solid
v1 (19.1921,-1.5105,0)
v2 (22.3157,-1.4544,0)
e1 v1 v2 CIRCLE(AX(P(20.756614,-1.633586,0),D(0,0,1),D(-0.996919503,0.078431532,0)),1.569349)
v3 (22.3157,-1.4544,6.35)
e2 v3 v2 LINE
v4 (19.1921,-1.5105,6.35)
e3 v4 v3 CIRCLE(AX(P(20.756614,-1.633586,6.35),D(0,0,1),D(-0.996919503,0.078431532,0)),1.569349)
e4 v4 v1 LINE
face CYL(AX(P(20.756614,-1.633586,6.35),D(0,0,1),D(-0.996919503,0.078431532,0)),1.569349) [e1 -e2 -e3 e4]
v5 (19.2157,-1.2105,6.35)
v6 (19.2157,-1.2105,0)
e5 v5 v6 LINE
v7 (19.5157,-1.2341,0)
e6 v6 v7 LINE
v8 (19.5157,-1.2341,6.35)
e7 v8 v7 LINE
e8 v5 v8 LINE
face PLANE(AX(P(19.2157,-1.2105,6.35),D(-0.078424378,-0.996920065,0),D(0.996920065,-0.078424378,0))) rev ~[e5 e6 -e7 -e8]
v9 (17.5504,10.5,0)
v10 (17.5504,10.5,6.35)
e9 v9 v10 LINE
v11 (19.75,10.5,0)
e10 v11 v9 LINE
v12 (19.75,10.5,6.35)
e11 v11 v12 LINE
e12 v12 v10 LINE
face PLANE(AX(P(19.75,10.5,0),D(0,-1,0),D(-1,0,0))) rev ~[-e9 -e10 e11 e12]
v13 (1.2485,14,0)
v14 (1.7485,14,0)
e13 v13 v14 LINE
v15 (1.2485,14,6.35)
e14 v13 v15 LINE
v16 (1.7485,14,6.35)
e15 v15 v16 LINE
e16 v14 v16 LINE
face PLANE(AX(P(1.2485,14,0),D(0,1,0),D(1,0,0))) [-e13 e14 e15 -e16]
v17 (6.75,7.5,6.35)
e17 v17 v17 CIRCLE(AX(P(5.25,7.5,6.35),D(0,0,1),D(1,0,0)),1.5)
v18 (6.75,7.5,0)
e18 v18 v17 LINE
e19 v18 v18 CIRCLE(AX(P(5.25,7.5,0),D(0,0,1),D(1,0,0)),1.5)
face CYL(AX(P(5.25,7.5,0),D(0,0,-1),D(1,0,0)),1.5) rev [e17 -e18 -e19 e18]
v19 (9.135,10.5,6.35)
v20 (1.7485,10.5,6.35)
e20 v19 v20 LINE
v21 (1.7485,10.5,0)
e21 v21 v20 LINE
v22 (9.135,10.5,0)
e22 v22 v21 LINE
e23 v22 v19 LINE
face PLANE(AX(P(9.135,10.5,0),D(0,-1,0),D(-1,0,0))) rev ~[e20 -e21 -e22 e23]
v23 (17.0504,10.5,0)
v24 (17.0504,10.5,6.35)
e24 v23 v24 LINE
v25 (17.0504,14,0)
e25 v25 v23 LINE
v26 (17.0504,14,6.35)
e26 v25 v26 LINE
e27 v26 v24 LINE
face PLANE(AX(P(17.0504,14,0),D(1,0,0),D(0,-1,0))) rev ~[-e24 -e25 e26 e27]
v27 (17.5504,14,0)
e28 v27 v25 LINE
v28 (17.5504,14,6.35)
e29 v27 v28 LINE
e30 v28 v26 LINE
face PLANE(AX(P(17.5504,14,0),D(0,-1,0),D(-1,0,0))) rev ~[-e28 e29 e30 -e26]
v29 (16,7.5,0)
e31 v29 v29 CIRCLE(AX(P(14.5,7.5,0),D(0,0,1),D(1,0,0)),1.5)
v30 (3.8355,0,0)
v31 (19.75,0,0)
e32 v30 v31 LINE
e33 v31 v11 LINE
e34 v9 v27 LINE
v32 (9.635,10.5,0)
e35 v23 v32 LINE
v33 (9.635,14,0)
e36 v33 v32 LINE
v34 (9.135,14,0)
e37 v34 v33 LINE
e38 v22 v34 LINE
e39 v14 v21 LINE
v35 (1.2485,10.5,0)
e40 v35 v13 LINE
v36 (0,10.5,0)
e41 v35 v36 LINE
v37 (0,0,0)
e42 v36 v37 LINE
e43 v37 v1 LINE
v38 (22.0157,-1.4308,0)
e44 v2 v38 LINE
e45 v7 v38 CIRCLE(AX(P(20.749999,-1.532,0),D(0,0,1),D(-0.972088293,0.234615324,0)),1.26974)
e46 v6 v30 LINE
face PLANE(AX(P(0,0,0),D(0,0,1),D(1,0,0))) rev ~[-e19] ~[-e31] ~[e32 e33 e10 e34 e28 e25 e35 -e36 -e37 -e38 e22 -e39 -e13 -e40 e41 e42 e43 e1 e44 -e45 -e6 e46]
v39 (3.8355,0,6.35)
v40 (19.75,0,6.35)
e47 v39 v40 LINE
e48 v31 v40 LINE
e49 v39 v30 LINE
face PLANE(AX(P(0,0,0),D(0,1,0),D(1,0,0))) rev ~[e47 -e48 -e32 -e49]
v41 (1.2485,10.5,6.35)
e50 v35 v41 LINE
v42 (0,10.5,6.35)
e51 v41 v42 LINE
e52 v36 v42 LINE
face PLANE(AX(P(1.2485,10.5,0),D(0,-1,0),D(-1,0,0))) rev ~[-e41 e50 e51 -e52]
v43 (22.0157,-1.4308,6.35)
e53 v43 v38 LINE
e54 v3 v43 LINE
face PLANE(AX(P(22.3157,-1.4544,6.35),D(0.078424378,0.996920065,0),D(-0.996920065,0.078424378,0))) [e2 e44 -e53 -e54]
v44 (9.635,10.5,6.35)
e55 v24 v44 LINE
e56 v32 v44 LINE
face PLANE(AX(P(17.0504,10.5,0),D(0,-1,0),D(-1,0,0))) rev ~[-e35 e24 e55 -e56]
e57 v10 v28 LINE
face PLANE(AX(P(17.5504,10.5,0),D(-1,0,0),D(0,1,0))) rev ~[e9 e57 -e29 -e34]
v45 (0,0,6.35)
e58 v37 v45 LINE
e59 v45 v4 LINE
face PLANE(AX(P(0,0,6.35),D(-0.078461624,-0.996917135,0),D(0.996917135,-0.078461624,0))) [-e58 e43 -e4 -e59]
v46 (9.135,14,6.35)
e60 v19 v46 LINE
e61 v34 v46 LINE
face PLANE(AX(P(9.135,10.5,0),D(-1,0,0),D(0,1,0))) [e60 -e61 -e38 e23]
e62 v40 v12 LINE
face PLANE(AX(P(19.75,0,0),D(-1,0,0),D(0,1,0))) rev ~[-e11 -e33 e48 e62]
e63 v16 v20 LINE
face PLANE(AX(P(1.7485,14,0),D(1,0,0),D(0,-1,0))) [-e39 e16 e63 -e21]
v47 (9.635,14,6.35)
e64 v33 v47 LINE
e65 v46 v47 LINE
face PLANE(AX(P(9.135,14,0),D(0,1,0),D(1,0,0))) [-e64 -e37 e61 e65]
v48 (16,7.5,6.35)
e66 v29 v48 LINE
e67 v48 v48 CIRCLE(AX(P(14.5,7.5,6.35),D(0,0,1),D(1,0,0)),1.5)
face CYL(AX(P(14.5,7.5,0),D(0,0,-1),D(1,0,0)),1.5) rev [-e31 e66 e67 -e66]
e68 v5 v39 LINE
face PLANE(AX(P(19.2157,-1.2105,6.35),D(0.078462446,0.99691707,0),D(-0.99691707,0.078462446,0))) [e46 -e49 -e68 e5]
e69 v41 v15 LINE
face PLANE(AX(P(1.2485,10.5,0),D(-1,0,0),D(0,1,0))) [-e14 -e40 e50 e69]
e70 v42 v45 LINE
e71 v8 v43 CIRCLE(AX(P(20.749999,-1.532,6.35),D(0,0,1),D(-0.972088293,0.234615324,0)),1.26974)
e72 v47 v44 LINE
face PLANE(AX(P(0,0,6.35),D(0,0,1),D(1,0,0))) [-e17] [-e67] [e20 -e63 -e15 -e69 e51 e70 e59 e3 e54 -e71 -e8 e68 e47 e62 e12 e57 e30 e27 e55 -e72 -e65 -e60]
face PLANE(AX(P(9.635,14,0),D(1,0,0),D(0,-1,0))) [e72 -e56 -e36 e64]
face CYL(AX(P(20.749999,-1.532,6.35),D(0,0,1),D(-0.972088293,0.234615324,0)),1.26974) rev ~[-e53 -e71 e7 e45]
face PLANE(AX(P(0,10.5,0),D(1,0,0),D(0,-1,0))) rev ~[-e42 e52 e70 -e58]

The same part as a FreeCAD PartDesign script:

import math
import FreeCAD as App
import Part
import Sketcher
Q = App.Units.Quantity

doc = App.newDocument("Part")
body = doc.addObject("PartDesign::Body", "Body")

# Sketch on XY plane
sketch1 = doc.addObject("Sketcher::SketchObject", "Sketch")
body.addObject(sketch1)
sketch1.AttachmentSupport = (doc.XY_Plane, [""])
sketch1.MapMode = "FlatFace"
sketch1.addGeometry(Part.LineSegment(App.Vector(0, 10.5, 0), App.Vector(0, 0, 0)), False)
sketch1.addGeometry(Part.LineSegment(App.Vector(0, 0, 0), App.Vector(19.8, 0, 0)), False)
sketch1.addGeometry(Part.LineSegment(App.Vector(19.8, 0, 0), App.Vector(19.8, 10.5, 0)), False)
sketch1.addGeometry(Part.LineSegment(App.Vector(19.8, 10.5, 0), App.Vector(17.6, 10.5, 0)), False)
sketch1.addGeometry(Part.LineSegment(App.Vector(17.6, 10.5, 0), App.Vector(17.6, 14, 0)), False)
sketch1.addGeometry(Part.LineSegment(App.Vector(17.6, 14, 0), App.Vector(17.1, 14, 0)), False)
sketch1.addGeometry(Part.LineSegment(App.Vector(17.1, 14, 0), App.Vector(17.1, 10.5, 0)), False)
sketch1.addGeometry(Part.LineSegment(App.Vector(17.1, 10.5, 0), App.Vector(9.6, 10.5, 0)), False)
sketch1.addGeometry(Part.LineSegment(App.Vector(9.6, 10.5, 0), App.Vector(9.6, 14, 0)), False)
sketch1.addGeometry(Part.LineSegment(App.Vector(9.6, 14, 0), App.Vector(9.1, 14, 0)), False)
sketch1.addGeometry(Part.LineSegment(App.Vector(9.1, 14, 0), App.Vector(9.1, 10.5, 0)), False)
sketch1.addGeometry(Part.LineSegment(App.Vector(9.1, 10.5, 0), App.Vector(1.7, 10.5, 0)), False)
sketch1.addGeometry(Part.LineSegment(App.Vector(1.7, 10.5, 0), App.Vector(1.7, 14, 0)), False)
sketch1.addGeometry(Part.LineSegment(App.Vector(1.7, 14, 0), App.Vector(1.2, 14, 0)), False)
sketch1.addGeometry(Part.LineSegment(App.Vector(1.2, 14, 0), App.Vector(1.2, 10.5, 0)), False)
sketch1.addGeometry(Part.LineSegment(App.Vector(1.2, 10.5, 0), App.Vector(0, 10.5, 0)), False)
sketch1.addGeometry(Part.Circle(App.Vector(5.2, 7.5, 0), App.Vector(0, 0, 1), 1.5), False)
sketch1.addGeometry(Part.Circle(App.Vector(14.5, 7.5, 0), App.Vector(0, 0, 1), 1.5), False)
sketch1.addConstraint(Sketcher.Constraint("Coincident", 0, 2, 1, 1))
sketch1.addConstraint(Sketcher.Constraint("Coincident", 1, 2, 2, 1))
sketch1.addConstraint(Sketcher.Constraint("Coincident", 2, 2, 3, 1))
sketch1.addConstraint(Sketcher.Constraint("Coincident", 3, 2, 4, 1))
sketch1.addConstraint(Sketcher.Constraint("Coincident", 4, 2, 5, 1))
sketch1.addConstraint(Sketcher.Constraint("Coincident", 5, 2, 6, 1))
sketch1.addConstraint(Sketcher.Constraint("Coincident", 6, 2, 7, 1))
sketch1.addConstraint(Sketcher.Constraint("Coincident", 7, 2, 8, 1))
sketch1.addConstraint(Sketcher.Constraint("Coincident", 8, 2, 9, 1))
sketch1.addConstraint(Sketcher.Constraint("Coincident", 9, 2, 10, 1))
sketch1.addConstraint(Sketcher.Constraint("Coincident", 10, 2, 11, 1))
sketch1.addConstraint(Sketcher.Constraint("Coincident", 11, 2, 12, 1))
sketch1.addConstraint(Sketcher.Constraint("Coincident", 12, 2, 13, 1))
sketch1.addConstraint(Sketcher.Constraint("Coincident", 13, 2, 14, 1))
sketch1.addConstraint(Sketcher.Constraint("Coincident", 14, 2, 15, 1))
sketch1.addConstraint(Sketcher.Constraint("Coincident", 15, 2, 0, 1))
sketch1.addConstraint(Sketcher.Constraint("Vertical", 0))
sketch1.addConstraint(Sketcher.Constraint("Horizontal", 1))
sketch1.addConstraint(Sketcher.Constraint("Vertical", 2))
sketch1.addConstraint(Sketcher.Constraint("Horizontal", 3))
sketch1.addConstraint(Sketcher.Constraint("Vertical", 4))
sketch1.addConstraint(Sketcher.Constraint("Horizontal", 5))
sketch1.addConstraint(Sketcher.Constraint("Vertical", 6))
sketch1.addConstraint(Sketcher.Constraint("Horizontal", 7))
sketch1.addConstraint(Sketcher.Constraint("Vertical", 8))
sketch1.addConstraint(Sketcher.Constraint("Horizontal", 9))
sketch1.addConstraint(Sketcher.Constraint("Vertical", 10))
sketch1.addConstraint(Sketcher.Constraint("Horizontal", 11))
sketch1.addConstraint(Sketcher.Constraint("Vertical", 12))
sketch1.addConstraint(Sketcher.Constraint("Horizontal", 13))
sketch1.addConstraint(Sketcher.Constraint("Vertical", 14))
sketch1.addConstraint(Sketcher.Constraint("Horizontal", 15))
sketch1.addConstraint(Sketcher.Constraint("Coincident", 0, 2, -1, 1))
sketch1.addConstraint(Sketcher.Constraint("Equal", 16, 17))
sketch1.addConstraint(Sketcher.Constraint("Horizontal", 16, 3, 17, 3))
sketch1.addConstraint(Sketcher.Constraint("Horizontal", 3, 2, 6, 2))
sketch1.addConstraint(Sketcher.Constraint("Horizontal", 5, 2, 8, 2))
sketch1.addConstraint(Sketcher.Constraint("Horizontal", 7, 2, 10, 2))
sketch1.addConstraint(Sketcher.Constraint("Horizontal", 9, 2, 12, 2))
sketch1.addConstraint(Sketcher.Constraint("Horizontal", 11, 2, 14, 2))
sketch1.addConstraint(Sketcher.Constraint("Equal", 5, 9))
sketch1.addConstraint(Sketcher.Constraint("Equal", 9, 13))
sketch1.addConstraint(Sketcher.Constraint("Diameter", 16, 3.0))
sketch1.addConstraint(Sketcher.Constraint("DistanceX", 5, 2, 5, 1, 0.5))
sketch1.addConstraint(Sketcher.Constraint("DistanceY", 0, 2, 0, 1, 10.5))
sketch1.addConstraint(Sketcher.Constraint("DistanceY", -1, 1, 4, 2, 14.0))
sketch1.addConstraint(Sketcher.Constraint("DistanceY", 17, 3, 2, 2, 3.0))
sketch1.addConstraint(Sketcher.Constraint("DistanceX", 1, 1, 1, 2, 19.75))
sketch1.addConstraint(Sketcher.Constraint("DistanceX", -1, 1, 16, 3, 5.25))
sketch1.addConstraint(Sketcher.Constraint("DistanceX", 16, 3, 17, 3, 9.25))
sketch1.addConstraint(Sketcher.Constraint("DistanceX", 3, 2, 3, 1, 2.1996))
sketch1.addConstraint(Sketcher.Constraint("DistanceX", 7, 2, 7, 1, 7.4154))
sketch1.addConstraint(Sketcher.Constraint("DistanceX", 11, 2, 11, 1, 7.3865))
pad1 = doc.addObject("PartDesign::Pad", "Pad")
body.addObject(pad1)
pad1.Profile = sketch1
pad1.Length = 6.35

# Sketch on XY plane
sketch2 = doc.addObject("Sketcher::SketchObject", "Sketch001")
body.addObject(sketch2)
sketch2.AttachmentSupport = (doc.XY_Plane, [""])
sketch2.MapMode = "FlatFace"
sketch2.AttachmentOffset = App.Placement(App.Vector(0, 0, 6.35), App.Rotation())
sketch2.addGeometry(Part.LineSegment(App.Vector(3.84, 0, 0), App.Vector(0, 0, 0)), False)
sketch2.addGeometry(Part.LineSegment(App.Vector(0, 0, 0), App.Vector(19.19, -1.51, 0)), False)
sketch2.addGeometry(Part.ArcOfCircle(Part.Circle(App.Vector(20.76, -1.63, 0), App.Vector(0, 0, 1), 1.57), math.radians(176), math.radians(367)), False)
sketch2.addGeometry(Part.LineSegment(App.Vector(22.32, -1.45, 0), App.Vector(22.02, -1.43, 0)), False)
sketch2.addGeometry(Part.ArcOfCircle(Part.Circle(App.Vector(20.75, -1.53, 0), App.Vector(0, 0, 1), 1.27), math.radians(166), math.radians(365)), False)
sketch2.addGeometry(Part.LineSegment(App.Vector(19.52, -1.23, 0), App.Vector(19.22, -1.21, 0)), False)
sketch2.addGeometry(Part.LineSegment(App.Vector(19.22, -1.21, 0), App.Vector(3.84, 0, 0)), False)
sketch2.addConstraint(Sketcher.Constraint("Coincident", 0, 2, 1, 1))
sketch2.addConstraint(Sketcher.Constraint("Coincident", 1, 2, 2, 1))
sketch2.addConstraint(Sketcher.Constraint("Coincident", 2, 2, 3, 1))
sketch2.addConstraint(Sketcher.Constraint("Coincident", 3, 2, 4, 2))
sketch2.addConstraint(Sketcher.Constraint("Coincident", 4, 1, 5, 1))
sketch2.addConstraint(Sketcher.Constraint("Coincident", 5, 2, 6, 1))
sketch2.addConstraint(Sketcher.Constraint("Coincident", 6, 2, 0, 1))
sketch2.addConstraint(Sketcher.Constraint("Horizontal", 0))
sketch2.addConstraint(Sketcher.Constraint("Coincident", 0, 2, -1, 1))
sketch2.addConstraint(Sketcher.Constraint("Parallel", 1, 3))
sketch2.addConstraint(Sketcher.Constraint("Parallel", 3, 5))
sketch2.addConstraint(Sketcher.Constraint("Parallel", 5, 6))
sketch2.addConstraint(Sketcher.Constraint("Equal", 3, 5))
sketch2.addConstraint(Sketcher.Constraint("Angle", 1, Q("-4.5001 deg")))
sketch2.addConstraint(Sketcher.Constraint("DistanceX", 3, 2, 2, 2, 0.3))
sketch2.addConstraint(Sketcher.Constraint("DistanceX", 4, 1, 3, 2, 2.5))
sketch2.addConstraint(Sketcher.Constraint("DistanceY", 1, 2, 5, 2, 0.3))
sketch2.addConstraint(Sketcher.Constraint("Radius", 2, 1.5693))
sketch2.addConstraint(Sketcher.Constraint("Radius", 4, 1.2697))
sketch2.addConstraint(Sketcher.Constraint("DistanceX", -1, 1, 4, 3, 20.75))
sketch2.addConstraint(Sketcher.Constraint("DistanceX", 0, 2, 0, 1, 3.8355))
sketch2.addConstraint(Sketcher.Constraint("DistanceY", 4, 3, -1, 1, 1.532))
pad2 = doc.addObject("PartDesign::Pad", "Pad001")
body.addObject(pad2)
pad2.Profile = sketch2
pad2.Length = 6.35
pad2.Reversed = True

doc.recompute()
